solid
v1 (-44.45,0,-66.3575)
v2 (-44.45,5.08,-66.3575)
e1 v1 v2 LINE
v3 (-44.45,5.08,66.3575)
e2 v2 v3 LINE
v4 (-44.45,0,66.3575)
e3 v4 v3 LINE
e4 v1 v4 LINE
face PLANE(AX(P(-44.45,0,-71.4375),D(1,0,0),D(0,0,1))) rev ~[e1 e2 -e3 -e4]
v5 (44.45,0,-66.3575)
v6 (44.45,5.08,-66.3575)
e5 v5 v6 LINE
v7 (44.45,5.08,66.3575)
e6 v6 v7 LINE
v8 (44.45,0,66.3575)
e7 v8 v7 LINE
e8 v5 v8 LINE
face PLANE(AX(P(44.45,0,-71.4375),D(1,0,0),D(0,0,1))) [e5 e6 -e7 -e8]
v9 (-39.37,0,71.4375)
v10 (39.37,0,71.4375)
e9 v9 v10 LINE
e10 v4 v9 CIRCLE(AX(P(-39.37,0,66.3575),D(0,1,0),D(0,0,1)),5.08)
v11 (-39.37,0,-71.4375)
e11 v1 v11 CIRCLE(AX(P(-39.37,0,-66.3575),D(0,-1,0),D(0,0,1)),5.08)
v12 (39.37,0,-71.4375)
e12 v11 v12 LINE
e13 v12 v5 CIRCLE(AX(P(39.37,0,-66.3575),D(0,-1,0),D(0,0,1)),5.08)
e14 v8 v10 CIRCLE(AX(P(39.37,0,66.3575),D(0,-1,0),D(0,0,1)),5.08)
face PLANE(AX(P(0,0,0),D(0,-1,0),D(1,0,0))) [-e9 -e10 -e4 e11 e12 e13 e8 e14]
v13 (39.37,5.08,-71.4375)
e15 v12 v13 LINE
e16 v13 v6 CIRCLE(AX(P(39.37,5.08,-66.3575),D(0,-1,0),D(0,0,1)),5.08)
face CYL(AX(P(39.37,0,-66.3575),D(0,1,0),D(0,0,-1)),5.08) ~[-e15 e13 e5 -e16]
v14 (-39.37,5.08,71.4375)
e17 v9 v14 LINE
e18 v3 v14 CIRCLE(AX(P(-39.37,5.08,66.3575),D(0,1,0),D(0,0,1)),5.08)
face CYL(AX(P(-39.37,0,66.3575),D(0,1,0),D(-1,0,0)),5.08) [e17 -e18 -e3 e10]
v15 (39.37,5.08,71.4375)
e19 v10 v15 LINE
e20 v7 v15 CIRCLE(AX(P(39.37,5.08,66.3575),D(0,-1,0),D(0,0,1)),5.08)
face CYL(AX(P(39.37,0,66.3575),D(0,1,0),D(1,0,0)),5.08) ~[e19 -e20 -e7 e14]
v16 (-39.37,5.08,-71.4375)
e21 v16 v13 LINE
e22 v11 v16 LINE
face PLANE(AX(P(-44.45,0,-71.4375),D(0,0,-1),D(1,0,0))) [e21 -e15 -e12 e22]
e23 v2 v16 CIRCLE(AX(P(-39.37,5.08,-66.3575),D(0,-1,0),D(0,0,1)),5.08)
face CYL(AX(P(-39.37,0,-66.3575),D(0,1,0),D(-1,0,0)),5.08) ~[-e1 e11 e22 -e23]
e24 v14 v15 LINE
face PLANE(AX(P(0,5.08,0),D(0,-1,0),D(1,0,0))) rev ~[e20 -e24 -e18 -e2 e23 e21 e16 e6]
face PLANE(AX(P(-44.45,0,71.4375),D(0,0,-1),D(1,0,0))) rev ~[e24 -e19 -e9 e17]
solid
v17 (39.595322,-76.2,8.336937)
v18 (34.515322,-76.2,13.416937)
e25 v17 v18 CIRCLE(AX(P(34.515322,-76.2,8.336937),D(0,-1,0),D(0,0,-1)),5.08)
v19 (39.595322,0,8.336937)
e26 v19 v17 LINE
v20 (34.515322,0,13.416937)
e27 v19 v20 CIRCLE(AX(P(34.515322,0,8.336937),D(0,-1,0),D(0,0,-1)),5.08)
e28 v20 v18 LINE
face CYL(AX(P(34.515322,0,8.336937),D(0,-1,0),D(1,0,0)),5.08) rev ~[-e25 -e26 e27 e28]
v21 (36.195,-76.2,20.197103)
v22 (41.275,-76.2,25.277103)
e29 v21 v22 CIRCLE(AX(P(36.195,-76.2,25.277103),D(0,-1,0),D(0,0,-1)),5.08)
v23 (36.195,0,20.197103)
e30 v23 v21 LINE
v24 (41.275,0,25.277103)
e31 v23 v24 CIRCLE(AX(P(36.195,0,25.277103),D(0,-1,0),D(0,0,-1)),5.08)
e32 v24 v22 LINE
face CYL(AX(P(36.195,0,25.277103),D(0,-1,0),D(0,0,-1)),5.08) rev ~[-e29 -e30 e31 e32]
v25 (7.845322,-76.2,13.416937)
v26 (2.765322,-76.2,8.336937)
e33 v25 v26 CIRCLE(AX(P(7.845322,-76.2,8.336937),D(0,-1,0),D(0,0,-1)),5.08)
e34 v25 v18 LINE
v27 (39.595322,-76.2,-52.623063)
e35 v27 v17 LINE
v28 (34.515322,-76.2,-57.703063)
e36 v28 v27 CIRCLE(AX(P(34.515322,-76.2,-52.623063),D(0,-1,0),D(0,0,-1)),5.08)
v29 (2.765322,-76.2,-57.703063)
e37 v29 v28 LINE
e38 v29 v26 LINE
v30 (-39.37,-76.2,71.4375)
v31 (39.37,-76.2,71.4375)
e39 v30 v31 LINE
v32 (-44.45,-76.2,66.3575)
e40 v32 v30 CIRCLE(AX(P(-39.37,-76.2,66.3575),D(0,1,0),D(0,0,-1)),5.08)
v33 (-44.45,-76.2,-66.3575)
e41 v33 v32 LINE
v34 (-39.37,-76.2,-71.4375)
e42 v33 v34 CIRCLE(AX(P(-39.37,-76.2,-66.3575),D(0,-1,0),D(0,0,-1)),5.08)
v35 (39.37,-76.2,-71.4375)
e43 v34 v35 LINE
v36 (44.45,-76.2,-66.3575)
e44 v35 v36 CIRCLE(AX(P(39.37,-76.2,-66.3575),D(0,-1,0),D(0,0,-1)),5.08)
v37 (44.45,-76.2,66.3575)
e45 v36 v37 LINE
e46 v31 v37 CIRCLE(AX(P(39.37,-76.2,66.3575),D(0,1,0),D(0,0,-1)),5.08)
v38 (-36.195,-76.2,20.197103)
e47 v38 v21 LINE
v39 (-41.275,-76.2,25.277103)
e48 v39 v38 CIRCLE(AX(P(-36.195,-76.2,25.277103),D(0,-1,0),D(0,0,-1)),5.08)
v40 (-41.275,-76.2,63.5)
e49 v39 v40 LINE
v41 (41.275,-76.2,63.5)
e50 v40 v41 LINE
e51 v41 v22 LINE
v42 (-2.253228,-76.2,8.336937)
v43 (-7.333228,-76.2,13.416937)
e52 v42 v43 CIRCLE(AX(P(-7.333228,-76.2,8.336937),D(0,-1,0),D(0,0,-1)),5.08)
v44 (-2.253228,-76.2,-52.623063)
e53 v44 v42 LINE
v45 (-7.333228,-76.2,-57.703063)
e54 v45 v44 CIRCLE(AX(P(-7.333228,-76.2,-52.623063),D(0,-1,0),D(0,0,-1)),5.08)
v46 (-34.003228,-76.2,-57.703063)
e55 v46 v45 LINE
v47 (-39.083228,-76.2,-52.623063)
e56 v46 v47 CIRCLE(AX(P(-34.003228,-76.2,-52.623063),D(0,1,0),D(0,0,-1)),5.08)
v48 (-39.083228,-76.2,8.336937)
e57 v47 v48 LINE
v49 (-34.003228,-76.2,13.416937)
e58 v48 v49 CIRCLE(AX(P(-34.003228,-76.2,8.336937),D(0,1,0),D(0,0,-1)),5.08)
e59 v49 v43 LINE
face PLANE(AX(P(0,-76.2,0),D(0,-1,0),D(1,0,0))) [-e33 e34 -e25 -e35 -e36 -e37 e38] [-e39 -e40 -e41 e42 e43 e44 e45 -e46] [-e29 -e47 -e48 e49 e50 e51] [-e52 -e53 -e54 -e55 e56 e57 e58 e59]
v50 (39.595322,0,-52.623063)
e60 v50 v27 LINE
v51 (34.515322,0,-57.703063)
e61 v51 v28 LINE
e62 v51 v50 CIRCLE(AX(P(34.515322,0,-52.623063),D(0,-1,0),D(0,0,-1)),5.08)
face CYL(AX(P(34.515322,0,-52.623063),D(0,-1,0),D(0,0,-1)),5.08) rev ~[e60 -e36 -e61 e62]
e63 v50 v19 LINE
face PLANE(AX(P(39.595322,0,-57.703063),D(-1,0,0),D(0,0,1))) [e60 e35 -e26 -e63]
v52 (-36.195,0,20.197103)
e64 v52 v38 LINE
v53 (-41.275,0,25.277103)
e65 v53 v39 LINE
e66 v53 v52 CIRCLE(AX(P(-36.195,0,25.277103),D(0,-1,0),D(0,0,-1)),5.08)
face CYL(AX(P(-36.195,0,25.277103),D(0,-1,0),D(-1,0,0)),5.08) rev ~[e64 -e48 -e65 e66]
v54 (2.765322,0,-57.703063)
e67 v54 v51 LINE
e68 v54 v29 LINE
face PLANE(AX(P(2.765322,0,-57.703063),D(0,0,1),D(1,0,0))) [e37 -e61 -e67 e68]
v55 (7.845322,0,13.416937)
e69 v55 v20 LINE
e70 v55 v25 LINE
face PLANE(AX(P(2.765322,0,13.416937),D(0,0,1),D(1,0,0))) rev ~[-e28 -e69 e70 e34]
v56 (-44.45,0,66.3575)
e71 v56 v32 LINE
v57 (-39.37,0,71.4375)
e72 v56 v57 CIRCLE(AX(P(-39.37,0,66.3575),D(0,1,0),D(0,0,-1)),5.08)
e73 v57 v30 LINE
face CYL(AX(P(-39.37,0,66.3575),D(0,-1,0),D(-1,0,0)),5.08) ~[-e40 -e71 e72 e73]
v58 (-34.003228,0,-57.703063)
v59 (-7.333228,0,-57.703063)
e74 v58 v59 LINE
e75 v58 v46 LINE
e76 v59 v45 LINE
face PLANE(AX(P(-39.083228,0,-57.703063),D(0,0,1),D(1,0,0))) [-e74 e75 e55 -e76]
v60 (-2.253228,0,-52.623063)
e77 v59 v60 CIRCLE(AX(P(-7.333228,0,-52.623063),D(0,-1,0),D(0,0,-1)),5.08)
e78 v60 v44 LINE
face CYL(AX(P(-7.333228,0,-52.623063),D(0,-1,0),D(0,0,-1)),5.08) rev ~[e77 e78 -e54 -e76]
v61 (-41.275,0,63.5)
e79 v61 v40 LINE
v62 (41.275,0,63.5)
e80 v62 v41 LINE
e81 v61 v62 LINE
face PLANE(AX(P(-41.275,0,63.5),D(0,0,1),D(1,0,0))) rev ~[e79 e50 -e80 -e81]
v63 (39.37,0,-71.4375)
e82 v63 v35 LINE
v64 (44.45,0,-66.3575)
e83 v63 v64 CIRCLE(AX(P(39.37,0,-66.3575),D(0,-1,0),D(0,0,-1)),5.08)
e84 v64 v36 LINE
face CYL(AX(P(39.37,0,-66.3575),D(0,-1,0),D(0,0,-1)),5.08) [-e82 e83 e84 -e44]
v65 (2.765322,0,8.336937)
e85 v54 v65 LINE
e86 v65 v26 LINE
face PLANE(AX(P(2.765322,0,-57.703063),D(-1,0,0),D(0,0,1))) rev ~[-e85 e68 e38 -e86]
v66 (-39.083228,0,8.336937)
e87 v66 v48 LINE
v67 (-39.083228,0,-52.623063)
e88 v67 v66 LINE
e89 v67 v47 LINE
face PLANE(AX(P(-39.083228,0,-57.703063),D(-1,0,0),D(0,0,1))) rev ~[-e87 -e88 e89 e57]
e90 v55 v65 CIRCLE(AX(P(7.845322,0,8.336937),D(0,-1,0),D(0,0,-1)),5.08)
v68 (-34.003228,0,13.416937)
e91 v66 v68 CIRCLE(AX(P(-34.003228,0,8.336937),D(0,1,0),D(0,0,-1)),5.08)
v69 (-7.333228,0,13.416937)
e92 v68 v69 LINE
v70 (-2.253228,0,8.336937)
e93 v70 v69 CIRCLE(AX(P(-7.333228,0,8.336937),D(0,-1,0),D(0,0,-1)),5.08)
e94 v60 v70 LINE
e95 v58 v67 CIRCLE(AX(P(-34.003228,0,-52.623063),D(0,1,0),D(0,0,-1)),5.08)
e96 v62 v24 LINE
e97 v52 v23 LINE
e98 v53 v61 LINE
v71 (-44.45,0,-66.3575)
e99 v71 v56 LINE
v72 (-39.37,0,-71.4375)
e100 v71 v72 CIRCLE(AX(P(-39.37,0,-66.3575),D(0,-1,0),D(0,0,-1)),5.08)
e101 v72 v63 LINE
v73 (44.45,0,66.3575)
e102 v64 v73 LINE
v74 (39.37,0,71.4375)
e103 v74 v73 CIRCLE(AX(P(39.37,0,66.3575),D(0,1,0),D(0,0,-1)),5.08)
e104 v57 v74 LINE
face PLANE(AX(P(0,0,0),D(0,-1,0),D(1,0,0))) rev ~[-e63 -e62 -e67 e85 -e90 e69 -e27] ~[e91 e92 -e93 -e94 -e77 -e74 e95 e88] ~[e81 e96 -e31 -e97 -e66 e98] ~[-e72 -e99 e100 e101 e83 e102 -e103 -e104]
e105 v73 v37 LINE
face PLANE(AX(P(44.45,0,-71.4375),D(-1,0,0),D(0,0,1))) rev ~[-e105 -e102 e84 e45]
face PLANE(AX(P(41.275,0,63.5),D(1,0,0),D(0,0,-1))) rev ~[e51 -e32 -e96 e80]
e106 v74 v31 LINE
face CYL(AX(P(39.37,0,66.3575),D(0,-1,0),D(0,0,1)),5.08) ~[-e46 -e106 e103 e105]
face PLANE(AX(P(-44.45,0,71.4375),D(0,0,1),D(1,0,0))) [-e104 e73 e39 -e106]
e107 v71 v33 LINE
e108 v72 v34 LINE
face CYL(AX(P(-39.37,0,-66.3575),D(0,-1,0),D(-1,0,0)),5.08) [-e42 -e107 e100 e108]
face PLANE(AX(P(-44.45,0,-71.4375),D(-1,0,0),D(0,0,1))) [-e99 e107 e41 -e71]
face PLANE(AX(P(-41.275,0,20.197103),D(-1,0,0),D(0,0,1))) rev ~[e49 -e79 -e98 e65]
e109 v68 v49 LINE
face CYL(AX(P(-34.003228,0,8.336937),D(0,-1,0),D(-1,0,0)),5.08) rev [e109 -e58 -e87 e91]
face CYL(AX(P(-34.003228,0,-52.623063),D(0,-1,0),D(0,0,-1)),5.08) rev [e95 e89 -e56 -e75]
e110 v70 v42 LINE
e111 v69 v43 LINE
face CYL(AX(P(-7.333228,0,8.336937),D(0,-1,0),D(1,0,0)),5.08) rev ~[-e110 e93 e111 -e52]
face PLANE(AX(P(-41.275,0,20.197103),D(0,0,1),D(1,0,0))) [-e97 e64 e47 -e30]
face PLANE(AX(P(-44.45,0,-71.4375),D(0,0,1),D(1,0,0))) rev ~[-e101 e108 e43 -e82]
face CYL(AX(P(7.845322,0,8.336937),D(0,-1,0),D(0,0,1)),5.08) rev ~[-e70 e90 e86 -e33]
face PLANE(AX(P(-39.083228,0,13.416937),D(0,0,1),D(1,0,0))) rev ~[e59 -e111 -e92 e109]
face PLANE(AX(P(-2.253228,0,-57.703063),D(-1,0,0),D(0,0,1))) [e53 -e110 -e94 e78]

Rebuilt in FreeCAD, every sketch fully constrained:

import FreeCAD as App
import Part
import Sketcher

V = App.Vector
Q = App.Units.Quantity


def edges_at(feature, points):
    """Names of the edges that pass closest to the given points."""
    edges = feature.Shape.Edges
    near = lambda p: min(range(len(edges)), key=lambda i: edges[i].distToShape(Part.Vertex(*p))[0])
    return sorted({f"Edge{near(p) + 1}" for p in points})


def add_polygon(sketch, points):
    """Adds a closed chain of lines whose ends are joined by coincident constraints."""
    first, n = sketch.GeometryCount, len(points)
    for a, b in zip(points, points[1:] + points[:1]):
        sketch.addGeometry(Part.LineSegment(App.Vector(*a, 0), App.Vector(*b, 0)), False)
    for i in range(n):
        sketch.addConstraint(Sketcher.Constraint("Coincident", first + i, 2, first + (i + 1) % n, 1))

doc = App.newDocument("Part")
body = doc.addObject("PartDesign::Body", "Body")

# Sketch on XZ plane
sketch1 = body.newObject("Sketcher::SketchObject", "Sketch")
sketch1.AttachmentSupport = (doc.getObject("XZ_Plane"), [""])
sketch1.MapMode = "FlatFace"
add_polygon(sketch1, [(-44, 71), (-44, -71), (44, -71), (44, 71)])  # lines 0-3
add_polygon(sketch1, [(-2, -58), (-39, -58), (-39, 13), (-2, 13)])  # lines 4-7
add_polygon(sketch1, [(40, -58), (3, -58), (3, 13), (40, 13)])  # lines 8-11
add_polygon(sketch1, [(-41, 20), (-41, 64), (41, 64), (41, 20)])  # lines 12-15
sketch1.addConstraint(Sketcher.Constraint("Vertical", 0))
sketch1.addConstraint(Sketcher.Constraint("Horizontal", 1))
sketch1.addConstraint(Sketcher.Constraint("Vertical", 2))
sketch1.addConstraint(Sketcher.Constraint("Horizontal", 3))
sketch1.addConstraint(Sketcher.Constraint("Horizontal", 4))
sketch1.addConstraint(Sketcher.Constraint("Vertical", 5))
sketch1.addConstraint(Sketcher.Constraint("Horizontal", 6))
sketch1.addConstraint(Sketcher.Constraint("Vertical", 7))
sketch1.addConstraint(Sketcher.Constraint("Horizontal", 8))
sketch1.addConstraint(Sketcher.Constraint("Vertical", 9))
sketch1.addConstraint(Sketcher.Constraint("Horizontal", 10))
sketch1.addConstraint(Sketcher.Constraint("Vertical", 11))
sketch1.addConstraint(Sketcher.Constraint("Vertical", 12))
sketch1.addConstraint(Sketcher.Constraint("Horizontal", 13))
sketch1.addConstraint(Sketcher.Constraint("Vertical", 14))
sketch1.addConstraint(Sketcher.Constraint("Horizontal", 15))
sketch1.addConstraint(Sketcher.Constraint("Symmetric", 0, 2, 2, 2, -1, 1))
sketch1.addConstraint(Sketcher.Constraint("Horizontal", 7, 2, 8, 2))
sketch1.addConstraint(Sketcher.Constraint("Horizontal", 6, 2, 9, 2))
sketch1.addConstraint(Sketcher.Constraint("Equal", 6, 8))
sketch1.addConstraint(Sketcher.Constraint("DistanceX", 1, 1, 1, 2, Q("3.5 in")))
sketch1.addConstraint(Sketcher.Constraint("DistanceY", 5, 1, 5, 2, Q("2.8 in")))
sketch1.addConstraint(Sketcher.Constraint("DistanceX", 4, 2, 4, 1, Q("1.45 in")))
sketch1.addConstraint(Sketcher.Constraint("DistanceX", 13, 1, 13, 2, Q("3.25 in")))
sketch1.addConstraint(Sketcher.Constraint("DistanceY", -1, 1, 12, 2, Q("2.5 in")))
sketch1.addConstraint(Sketcher.Constraint("DistanceY", 0, 2, 0, 1, Q("5.625 in")))
sketch1.addConstraint(Sketcher.Constraint("DistanceX", 12, 2, -1, 1, Q("1.625 in")))
sketch1.addConstraint(Sketcher.Constraint("DistanceY", 12, 1, 12, 2, Q("43.302897 mm")))
sketch1.addConstraint(Sketcher.Constraint("DistanceX", 7, 2, 8, 2, Q("5.01855 mm")))
sketch1.addConstraint(Sketcher.Constraint("DistanceX", 4, 2, -1, 1, Q("39.083228 mm")))
sketch1.addConstraint(Sketcher.Constraint("DistanceY", 4, 2, -1, 1, Q("57.703063 mm")))
pad1 = body.newObject("PartDesign::Pad", "Pad")
pad1.Profile = sketch1
pad1.Length = Q("3 in")
doc.recompute()

fillet = body.newObject("PartDesign::Fillet", "Fillet")
fillet.Base = (pad1, edges_at(pad1, [
    (44.45, -38.1, 71.438),
    (-44.45, -38.1, 71.438),
    (41.275, -38.1, 20.197),
    (-41.275, -38.1, 20.197),
    (-39.083, -38.1, -57.703),
    (39.595, -38.1, -57.703),
    (-2.253, -38.1, -57.703),
    (-39.083, -38.1, 13.417),
    (2.765, -38.1, 13.417),
    (39.595, -38.1, 13.417),
    (-2.253, -38.1, 13.417),
    (44.45, -38.1, -71.438),
    (-44.45, -38.1, -71.438),
]))
fillet.Radius = Q("0.2 in")
body2 = doc.addObject("PartDesign::Body", "Body001")

# Sketch on XZ plane
sketch2 = body2.newObject("Sketcher::SketchObject", "Sketch001")
sketch2.AttachmentSupport = (doc.getObject("XZ_Plane001"), [""])
sketch2.MapMode = "FlatFace"
add_polygon(sketch2, [(-44, 71), (-44, -71), (44, -71), (44, 71)])  # lines 0-3
sketch2.addConstraint(Sketcher.Constraint("Vertical", 0))
sketch2.addConstraint(Sketcher.Constraint("Horizontal", 1))
sketch2.addConstraint(Sketcher.Constraint("Vertical", 2))
sketch2.addConstraint(Sketcher.Constraint("Horizontal", 3))
sketch2.addConstraint(Sketcher.Constraint("Symmetric", 0, 2, 2, 2, -1, 1))
sketch2.addConstraint(Sketcher.Constraint("DistanceX", 1, 1, 1, 2, Q("3.5 in")))
sketch2.addConstraint(Sketcher.Constraint("DistanceY", 0, 2, 0, 1, Q("5.625 in")))
pad2 = body2.newObject("PartDesign::Pad", "Pad001")
pad2.Profile = sketch2
pad2.Length = Q("0.2 in")
pad2.Reversed = True
doc.recompute()

fillet2 = body2.newObject("PartDesign::Fillet", "Fillet001")
fillet2.Base = (pad2, edges_at(pad2, [
    (44.45, 2.54, 71.438),
    (-44.45, 2.54, 71.438),
    (44.45, 2.54, -71.438),
    (-44.45, 2.54, -71.438),
]))
fillet2.Radius = Q("0.2 in")

doc.recompute()
